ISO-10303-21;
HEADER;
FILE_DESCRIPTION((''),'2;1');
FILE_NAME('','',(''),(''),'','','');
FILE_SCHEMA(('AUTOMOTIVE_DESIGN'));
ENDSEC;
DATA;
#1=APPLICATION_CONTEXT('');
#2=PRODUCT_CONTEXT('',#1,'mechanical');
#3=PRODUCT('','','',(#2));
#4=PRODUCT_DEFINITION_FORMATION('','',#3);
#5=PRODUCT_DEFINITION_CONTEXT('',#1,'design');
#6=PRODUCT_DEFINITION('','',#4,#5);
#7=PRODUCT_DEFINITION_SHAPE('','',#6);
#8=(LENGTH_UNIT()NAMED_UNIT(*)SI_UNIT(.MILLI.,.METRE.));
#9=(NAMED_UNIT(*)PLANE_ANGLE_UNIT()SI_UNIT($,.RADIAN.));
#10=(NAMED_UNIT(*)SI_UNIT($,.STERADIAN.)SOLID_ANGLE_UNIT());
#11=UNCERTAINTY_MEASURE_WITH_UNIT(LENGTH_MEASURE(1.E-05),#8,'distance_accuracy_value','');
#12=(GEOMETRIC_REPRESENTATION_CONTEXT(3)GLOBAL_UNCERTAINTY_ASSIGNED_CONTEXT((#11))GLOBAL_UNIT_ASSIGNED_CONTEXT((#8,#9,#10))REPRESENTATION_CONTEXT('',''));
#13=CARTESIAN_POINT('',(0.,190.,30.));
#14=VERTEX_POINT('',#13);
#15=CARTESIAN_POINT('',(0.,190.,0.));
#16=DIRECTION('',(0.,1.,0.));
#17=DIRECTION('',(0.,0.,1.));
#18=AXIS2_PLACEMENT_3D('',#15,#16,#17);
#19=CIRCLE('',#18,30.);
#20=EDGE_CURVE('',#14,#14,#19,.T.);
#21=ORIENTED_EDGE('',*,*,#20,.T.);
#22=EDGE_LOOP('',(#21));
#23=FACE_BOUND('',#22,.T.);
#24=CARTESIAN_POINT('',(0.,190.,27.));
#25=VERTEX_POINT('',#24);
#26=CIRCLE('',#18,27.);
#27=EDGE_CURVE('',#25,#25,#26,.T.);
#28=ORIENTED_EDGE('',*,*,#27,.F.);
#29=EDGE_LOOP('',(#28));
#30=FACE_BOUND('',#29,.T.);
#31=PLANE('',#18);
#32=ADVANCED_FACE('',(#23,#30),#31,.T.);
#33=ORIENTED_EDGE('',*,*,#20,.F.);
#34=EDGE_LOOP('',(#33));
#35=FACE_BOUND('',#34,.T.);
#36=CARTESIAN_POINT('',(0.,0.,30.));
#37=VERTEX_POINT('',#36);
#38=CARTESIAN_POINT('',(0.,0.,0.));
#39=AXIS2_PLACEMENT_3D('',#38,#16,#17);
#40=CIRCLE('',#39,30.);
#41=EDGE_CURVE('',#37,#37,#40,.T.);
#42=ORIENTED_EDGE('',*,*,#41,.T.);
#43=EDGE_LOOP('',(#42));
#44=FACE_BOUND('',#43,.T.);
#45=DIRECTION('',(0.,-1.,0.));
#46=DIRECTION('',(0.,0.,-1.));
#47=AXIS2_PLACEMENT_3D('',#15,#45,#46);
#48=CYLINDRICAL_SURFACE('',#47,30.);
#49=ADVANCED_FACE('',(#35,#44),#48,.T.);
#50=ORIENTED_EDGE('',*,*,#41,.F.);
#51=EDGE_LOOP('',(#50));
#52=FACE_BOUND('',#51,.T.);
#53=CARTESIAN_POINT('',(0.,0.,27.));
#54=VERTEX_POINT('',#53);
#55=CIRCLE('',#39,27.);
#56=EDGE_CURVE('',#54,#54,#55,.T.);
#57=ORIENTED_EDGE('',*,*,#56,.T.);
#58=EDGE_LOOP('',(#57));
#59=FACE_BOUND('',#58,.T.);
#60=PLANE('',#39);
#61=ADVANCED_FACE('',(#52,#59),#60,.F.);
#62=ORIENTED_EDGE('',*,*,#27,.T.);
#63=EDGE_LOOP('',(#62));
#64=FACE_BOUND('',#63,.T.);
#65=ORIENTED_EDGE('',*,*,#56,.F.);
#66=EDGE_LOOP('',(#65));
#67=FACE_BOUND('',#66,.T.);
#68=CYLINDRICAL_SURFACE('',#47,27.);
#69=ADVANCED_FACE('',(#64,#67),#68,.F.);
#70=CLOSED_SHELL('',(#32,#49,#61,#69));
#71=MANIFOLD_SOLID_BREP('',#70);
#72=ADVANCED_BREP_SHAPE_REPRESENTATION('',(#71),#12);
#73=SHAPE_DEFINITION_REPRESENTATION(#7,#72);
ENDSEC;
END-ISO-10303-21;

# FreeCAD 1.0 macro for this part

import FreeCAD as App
import Part
import Sketcher
from FreeCAD import Vector

doc = App.newDocument("Part")
body = doc.addObject("PartDesign::Body", "Body")

# Sketch on XZ plane
sketch1 = body.newObject("Sketcher::SketchObject", "Sketch")
sketch1.AttachmentSupport = (doc.getObject("XZ_Plane"), [""])
sketch1.MapMode = "FlatFace"
sketch1.addGeometry(Part.Circle(Vector(0, 0, 0), Vector(0, 0, 1), 30), False)
sketch1.addGeometry(Part.Circle(Vector(0, 0, 0), Vector(0, 0, 1), 27), False)
sketch1.addConstraint(Sketcher.Constraint("Coincident", 0, 3, -1, 1))
sketch1.addConstraint(Sketcher.Constraint("Coincident", 1, 3, -1, 1))
sketch1.addConstraint(Sketcher.Constraint("Diameter", 0, 60.0))
sketch1.addConstraint(Sketcher.Constraint("Diameter", 1, 54.0))
pad1 = body.newObject("PartDesign::Pad", "Pad")
pad1.Profile = sketch1
pad1.Length = 190
pad1.Reversed = True

doc.recompute()
